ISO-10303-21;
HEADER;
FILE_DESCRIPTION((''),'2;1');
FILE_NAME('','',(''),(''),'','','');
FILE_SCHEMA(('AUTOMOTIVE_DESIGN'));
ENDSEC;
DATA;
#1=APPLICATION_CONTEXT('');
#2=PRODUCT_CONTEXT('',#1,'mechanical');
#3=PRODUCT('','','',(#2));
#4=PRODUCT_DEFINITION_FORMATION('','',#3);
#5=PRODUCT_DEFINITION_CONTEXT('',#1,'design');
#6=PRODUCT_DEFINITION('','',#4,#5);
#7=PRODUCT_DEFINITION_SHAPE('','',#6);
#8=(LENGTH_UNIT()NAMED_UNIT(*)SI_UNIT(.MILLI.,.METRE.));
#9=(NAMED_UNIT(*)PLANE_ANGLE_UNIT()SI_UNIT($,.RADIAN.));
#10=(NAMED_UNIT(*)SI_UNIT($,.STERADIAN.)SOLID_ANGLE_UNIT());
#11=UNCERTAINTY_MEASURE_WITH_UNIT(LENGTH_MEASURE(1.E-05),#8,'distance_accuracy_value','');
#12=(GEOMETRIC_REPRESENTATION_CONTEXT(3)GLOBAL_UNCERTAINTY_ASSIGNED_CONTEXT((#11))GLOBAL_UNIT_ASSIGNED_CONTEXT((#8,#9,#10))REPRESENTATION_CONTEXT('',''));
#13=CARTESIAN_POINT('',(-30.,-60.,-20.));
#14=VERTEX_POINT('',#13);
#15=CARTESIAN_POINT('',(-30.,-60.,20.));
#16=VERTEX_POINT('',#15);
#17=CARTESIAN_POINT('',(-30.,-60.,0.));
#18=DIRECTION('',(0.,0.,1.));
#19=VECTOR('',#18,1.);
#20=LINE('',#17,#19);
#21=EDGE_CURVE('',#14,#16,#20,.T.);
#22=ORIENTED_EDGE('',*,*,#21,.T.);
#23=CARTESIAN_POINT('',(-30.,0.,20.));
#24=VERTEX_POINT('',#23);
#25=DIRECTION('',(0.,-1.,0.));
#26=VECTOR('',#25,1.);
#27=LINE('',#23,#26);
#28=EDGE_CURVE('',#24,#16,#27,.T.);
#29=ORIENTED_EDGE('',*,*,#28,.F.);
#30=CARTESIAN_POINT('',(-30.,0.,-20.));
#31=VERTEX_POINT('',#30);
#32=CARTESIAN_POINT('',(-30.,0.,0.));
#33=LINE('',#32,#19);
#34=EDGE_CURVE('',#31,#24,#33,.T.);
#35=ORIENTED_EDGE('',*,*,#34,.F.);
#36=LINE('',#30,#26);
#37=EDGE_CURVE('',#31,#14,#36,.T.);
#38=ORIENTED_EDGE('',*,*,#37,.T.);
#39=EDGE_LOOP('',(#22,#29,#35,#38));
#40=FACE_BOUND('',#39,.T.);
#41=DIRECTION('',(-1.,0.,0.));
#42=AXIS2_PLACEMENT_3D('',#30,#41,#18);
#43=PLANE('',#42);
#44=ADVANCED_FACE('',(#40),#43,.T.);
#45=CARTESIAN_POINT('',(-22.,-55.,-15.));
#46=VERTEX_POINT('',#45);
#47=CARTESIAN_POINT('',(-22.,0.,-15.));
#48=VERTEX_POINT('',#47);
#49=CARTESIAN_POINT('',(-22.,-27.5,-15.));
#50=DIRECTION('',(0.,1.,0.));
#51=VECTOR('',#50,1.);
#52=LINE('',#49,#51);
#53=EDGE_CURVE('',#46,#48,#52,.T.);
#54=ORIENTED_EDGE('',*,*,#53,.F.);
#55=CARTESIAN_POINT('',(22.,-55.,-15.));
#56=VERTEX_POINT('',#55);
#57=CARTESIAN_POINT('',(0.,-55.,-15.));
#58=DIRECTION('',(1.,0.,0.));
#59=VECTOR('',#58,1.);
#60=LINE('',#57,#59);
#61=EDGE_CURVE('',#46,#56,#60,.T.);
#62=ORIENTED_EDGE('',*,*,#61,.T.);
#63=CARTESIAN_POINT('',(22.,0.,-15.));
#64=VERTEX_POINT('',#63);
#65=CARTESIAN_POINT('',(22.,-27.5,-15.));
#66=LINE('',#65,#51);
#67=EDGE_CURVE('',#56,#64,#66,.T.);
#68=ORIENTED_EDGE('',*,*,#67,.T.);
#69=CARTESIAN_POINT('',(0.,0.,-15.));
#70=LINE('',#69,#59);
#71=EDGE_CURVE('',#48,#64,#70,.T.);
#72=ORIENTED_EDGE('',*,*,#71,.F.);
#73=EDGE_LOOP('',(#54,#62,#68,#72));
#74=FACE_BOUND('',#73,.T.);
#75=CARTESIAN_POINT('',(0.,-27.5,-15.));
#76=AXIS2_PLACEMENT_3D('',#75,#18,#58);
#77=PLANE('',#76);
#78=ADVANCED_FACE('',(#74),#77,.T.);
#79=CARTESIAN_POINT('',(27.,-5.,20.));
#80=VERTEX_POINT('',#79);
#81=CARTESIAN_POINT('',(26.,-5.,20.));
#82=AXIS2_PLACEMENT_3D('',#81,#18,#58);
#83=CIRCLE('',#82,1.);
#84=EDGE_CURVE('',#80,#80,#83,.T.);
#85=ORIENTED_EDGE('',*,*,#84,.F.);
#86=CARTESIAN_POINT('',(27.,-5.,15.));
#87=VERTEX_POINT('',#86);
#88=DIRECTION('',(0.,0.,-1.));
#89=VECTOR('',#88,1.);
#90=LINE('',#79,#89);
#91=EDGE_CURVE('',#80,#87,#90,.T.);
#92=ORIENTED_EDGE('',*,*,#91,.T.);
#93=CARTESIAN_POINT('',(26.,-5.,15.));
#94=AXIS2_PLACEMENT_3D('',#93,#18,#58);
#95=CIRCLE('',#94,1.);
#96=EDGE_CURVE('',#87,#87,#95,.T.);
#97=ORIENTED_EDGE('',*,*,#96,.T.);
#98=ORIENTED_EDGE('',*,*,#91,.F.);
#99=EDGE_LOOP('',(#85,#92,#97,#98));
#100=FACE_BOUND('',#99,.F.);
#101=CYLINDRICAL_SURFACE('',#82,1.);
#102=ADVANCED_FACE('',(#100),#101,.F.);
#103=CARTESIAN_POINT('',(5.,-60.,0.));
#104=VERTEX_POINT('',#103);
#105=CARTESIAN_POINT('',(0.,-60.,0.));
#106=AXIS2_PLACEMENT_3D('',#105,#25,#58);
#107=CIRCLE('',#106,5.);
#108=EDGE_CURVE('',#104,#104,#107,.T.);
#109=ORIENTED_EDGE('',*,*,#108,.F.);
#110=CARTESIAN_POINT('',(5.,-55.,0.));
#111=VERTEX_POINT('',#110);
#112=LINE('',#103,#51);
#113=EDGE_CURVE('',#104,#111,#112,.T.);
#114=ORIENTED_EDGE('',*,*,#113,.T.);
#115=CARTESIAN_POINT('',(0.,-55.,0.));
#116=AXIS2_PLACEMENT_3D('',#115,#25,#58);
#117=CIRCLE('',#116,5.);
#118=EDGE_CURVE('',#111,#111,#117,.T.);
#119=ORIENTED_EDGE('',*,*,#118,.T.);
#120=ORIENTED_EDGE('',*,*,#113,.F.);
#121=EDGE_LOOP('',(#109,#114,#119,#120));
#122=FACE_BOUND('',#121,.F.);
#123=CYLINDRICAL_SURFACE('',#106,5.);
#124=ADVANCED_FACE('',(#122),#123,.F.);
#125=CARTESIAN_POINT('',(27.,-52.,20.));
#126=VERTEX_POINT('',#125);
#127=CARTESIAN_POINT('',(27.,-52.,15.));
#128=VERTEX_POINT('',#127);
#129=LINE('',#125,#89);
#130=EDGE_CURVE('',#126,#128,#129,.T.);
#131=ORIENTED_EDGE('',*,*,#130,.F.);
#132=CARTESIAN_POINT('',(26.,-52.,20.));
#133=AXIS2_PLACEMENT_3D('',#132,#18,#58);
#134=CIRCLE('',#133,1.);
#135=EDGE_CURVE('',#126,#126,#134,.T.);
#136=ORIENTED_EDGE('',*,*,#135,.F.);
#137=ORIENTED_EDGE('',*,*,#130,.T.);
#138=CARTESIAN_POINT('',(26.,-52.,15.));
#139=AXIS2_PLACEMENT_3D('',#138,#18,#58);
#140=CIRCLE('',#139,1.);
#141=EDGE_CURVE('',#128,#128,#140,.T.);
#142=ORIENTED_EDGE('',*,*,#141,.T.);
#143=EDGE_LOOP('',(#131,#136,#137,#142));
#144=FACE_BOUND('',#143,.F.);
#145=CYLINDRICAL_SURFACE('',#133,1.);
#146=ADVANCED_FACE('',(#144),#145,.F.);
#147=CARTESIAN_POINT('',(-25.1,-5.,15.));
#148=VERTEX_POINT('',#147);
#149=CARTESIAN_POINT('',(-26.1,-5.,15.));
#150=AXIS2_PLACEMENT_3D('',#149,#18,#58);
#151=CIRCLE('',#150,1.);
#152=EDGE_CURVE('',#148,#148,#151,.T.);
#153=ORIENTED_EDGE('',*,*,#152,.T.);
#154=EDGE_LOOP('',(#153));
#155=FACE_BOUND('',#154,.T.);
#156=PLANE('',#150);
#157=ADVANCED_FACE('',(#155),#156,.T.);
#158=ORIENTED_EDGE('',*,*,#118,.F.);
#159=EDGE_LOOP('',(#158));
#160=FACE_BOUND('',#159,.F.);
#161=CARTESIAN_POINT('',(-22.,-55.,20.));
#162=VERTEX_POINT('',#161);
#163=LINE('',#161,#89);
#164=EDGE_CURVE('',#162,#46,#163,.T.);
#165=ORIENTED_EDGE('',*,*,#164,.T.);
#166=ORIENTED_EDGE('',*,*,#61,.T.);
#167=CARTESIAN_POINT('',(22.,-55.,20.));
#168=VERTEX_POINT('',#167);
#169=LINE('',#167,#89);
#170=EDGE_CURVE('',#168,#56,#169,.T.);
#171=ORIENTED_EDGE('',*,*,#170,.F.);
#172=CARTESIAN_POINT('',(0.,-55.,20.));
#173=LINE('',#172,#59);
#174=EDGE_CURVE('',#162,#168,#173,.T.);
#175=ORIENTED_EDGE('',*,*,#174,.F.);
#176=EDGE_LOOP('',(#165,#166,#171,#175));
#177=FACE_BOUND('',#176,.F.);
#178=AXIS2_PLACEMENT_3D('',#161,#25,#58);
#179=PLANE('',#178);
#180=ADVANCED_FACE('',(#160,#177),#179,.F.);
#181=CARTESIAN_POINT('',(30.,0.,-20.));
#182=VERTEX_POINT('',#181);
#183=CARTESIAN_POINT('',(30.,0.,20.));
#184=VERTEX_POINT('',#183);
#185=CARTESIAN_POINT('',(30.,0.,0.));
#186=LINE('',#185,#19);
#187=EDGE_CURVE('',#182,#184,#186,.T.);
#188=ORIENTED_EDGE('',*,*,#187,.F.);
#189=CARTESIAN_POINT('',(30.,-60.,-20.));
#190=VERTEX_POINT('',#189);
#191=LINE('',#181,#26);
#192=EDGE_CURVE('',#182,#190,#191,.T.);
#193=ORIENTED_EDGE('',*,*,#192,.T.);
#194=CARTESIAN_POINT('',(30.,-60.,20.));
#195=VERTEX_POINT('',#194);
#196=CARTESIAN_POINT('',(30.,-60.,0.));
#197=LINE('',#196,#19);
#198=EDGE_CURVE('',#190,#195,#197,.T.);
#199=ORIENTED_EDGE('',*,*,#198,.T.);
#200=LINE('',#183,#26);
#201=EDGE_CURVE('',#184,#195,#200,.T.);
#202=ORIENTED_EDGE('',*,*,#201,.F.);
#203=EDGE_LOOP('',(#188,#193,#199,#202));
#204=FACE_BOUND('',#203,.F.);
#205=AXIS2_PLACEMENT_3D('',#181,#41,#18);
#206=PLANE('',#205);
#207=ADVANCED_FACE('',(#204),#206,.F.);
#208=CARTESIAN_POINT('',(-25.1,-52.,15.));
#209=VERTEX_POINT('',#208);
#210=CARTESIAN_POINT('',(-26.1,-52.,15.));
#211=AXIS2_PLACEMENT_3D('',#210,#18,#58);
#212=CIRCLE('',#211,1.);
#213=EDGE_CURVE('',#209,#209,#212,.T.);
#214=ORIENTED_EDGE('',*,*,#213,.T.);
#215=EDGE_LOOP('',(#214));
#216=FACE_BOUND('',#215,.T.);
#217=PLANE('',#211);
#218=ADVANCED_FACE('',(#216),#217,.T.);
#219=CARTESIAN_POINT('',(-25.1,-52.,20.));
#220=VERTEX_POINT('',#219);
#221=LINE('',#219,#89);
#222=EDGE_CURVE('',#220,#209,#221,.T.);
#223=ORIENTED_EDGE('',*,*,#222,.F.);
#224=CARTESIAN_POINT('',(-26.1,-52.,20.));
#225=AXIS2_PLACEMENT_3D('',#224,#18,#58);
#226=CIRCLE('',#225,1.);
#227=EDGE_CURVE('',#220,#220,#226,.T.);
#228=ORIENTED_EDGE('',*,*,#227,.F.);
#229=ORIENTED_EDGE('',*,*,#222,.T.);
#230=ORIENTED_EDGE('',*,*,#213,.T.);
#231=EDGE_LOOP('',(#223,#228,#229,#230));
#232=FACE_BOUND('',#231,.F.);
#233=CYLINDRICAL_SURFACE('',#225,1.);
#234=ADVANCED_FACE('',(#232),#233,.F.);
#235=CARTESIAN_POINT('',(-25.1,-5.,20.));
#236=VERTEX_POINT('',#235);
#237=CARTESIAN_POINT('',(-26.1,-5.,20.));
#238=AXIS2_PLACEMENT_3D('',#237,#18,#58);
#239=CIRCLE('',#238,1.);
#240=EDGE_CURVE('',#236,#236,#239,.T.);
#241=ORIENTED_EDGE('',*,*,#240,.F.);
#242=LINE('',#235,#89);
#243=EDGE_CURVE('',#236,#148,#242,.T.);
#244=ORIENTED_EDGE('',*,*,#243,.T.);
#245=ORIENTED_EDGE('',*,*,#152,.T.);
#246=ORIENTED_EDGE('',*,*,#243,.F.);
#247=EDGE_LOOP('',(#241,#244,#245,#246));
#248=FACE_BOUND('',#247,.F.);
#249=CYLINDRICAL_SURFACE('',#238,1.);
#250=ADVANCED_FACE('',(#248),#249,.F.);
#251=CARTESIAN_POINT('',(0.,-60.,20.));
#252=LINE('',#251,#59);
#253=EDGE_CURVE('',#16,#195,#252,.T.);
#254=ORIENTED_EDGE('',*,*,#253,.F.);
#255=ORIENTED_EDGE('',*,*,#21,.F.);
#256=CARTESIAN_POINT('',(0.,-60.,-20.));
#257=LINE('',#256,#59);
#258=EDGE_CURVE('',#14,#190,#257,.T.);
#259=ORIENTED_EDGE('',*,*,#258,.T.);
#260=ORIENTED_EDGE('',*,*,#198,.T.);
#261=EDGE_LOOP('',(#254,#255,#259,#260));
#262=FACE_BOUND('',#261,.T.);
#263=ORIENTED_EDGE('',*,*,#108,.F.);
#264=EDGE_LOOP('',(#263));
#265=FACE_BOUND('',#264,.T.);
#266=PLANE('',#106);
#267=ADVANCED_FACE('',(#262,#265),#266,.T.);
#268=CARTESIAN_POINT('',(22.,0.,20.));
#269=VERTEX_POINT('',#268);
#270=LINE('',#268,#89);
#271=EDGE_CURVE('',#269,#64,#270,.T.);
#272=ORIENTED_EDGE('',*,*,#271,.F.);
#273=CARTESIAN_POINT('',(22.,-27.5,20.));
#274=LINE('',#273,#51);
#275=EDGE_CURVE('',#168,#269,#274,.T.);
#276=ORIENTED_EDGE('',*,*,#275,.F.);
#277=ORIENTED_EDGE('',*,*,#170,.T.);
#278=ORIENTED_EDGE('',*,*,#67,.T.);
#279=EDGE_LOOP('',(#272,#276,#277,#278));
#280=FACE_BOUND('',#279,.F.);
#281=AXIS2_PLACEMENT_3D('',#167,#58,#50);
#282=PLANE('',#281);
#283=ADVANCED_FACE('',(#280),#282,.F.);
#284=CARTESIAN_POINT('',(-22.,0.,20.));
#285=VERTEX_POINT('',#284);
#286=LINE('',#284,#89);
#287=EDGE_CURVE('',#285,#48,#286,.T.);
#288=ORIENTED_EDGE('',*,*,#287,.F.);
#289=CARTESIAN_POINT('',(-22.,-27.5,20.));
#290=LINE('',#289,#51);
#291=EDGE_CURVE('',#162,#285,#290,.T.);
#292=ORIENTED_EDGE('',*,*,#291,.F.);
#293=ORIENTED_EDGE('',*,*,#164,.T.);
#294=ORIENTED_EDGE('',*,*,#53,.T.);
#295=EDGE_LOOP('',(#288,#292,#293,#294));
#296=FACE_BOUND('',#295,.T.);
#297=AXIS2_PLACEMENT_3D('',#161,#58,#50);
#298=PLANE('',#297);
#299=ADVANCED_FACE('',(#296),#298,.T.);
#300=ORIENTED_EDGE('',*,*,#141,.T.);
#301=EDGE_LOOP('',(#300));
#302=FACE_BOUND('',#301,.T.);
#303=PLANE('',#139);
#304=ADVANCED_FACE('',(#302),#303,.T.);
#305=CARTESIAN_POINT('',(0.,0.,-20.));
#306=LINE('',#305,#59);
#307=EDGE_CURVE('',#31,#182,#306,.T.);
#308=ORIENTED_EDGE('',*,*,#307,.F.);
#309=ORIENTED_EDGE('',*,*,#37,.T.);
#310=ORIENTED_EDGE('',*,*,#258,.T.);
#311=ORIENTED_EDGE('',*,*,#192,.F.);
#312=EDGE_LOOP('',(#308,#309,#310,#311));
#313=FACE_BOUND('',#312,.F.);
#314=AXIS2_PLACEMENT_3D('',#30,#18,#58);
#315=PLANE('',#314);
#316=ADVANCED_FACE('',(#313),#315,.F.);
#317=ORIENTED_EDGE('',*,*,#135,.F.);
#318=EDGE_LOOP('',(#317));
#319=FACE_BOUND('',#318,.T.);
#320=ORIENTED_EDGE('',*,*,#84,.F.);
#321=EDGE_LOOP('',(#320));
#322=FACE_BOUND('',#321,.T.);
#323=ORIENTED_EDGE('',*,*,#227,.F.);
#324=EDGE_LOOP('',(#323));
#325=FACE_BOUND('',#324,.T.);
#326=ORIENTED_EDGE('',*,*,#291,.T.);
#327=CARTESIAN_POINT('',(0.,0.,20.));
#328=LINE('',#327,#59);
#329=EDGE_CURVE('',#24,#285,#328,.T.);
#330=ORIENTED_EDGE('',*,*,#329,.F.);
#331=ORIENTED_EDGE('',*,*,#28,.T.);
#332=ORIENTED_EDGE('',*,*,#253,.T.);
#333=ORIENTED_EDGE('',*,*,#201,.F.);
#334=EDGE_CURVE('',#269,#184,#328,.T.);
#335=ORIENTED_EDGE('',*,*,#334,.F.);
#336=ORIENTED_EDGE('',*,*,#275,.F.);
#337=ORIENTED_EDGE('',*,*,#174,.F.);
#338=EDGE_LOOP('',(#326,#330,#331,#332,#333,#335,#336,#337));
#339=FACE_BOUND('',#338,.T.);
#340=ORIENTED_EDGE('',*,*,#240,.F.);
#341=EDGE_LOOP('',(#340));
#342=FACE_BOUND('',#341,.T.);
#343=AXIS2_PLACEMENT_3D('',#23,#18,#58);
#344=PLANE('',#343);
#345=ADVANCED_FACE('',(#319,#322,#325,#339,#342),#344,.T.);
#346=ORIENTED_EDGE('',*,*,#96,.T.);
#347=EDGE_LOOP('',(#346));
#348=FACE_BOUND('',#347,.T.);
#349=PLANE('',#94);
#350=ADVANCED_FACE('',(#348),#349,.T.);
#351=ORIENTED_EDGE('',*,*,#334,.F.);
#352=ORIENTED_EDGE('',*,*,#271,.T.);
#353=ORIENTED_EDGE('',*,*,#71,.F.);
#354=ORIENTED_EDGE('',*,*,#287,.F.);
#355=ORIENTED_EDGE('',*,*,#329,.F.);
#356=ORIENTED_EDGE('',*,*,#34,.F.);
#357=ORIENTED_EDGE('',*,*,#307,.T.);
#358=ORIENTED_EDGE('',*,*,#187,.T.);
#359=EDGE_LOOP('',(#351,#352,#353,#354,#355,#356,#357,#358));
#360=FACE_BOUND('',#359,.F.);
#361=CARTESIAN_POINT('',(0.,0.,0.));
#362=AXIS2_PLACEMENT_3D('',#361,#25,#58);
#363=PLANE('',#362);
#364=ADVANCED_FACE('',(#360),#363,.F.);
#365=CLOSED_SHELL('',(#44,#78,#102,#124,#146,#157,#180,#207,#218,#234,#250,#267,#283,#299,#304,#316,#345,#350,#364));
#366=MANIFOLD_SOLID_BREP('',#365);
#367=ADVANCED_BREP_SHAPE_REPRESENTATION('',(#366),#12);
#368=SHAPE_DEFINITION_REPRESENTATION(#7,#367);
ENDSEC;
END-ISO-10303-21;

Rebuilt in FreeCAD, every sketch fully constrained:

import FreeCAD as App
import Part
import Sketcher
Q = App.Units.Quantity

doc = App.newDocument("Part")
body = doc.addObject("PartDesign::Body", "Body")

# Sketch on XZ plane
sketch1 = body.newObject("Sketcher::SketchObject", "Sketch")
sketch1.AttachmentSupport = (doc.getObject("XZ_Plane"), [""])
sketch1.MapMode = "FlatFace"
sketch1.addGeometry(Part.LineSegment(App.Vector(-30, 20, 0), App.Vector(-30, -20, 0)), False)
sketch1.addGeometry(Part.LineSegment(App.Vector(-30, -20, 0), App.Vector(30, -20, 0)), False)
sketch1.addGeometry(Part.LineSegment(App.Vector(30, -20, 0), App.Vector(30, 20, 0)), False)
sketch1.addGeometry(Part.LineSegment(App.Vector(30, 20, 0), App.Vector(-30, 20, 0)), False)
sketch1.addConstraint(Sketcher.Constraint("Coincident", 0, 2, 1, 1))
sketch1.addConstraint(Sketcher.Constraint("Coincident", 1, 2, 2, 1))
sketch1.addConstraint(Sketcher.Constraint("Coincident", 2, 2, 3, 1))
sketch1.addConstraint(Sketcher.Constraint("Coincident", 3, 2, 0, 1))
sketch1.addConstraint(Sketcher.Constraint("Vertical", 0))
sketch1.addConstraint(Sketcher.Constraint("Horizontal", 1))
sketch1.addConstraint(Sketcher.Constraint("Vertical", 2))
sketch1.addConstraint(Sketcher.Constraint("Horizontal", 3))
sketch1.addConstraint(Sketcher.Constraint("Symmetric", 0, 2, 2, 2, -1, 1))
sketch1.addConstraint(Sketcher.Constraint("DistanceX", 1, 1, 1, 2, Q("60 mm")))
sketch1.addConstraint(Sketcher.Constraint("DistanceY", 0, 2, 0, 1, Q("40 mm")))
pad1 = body.newObject("PartDesign::Pad", "Pad")
pad1.Profile = sketch1
pad1.Length = 60

# Sketch on XY plane
sketch2 = body.newObject("Sketcher::SketchObject", "Sketch001")
sketch2.AttachmentSupport = (doc.getObject("XY_Plane"), [""])
sketch2.MapMode = "FlatFace"
sketch2.AttachmentOffset = App.Placement(App.Vector(0, 0, 20), App.Rotation())
sketch2.addGeometry(Part.LineSegment(App.Vector(-22, 0, 0), App.Vector(-22, -55, 0)), False)
sketch2.addGeometry(Part.LineSegment(App.Vector(-22, -55, 0), App.Vector(22, -55, 0)), False)
sketch2.addGeometry(Part.LineSegment(App.Vector(22, -55, 0), App.Vector(22, 0, 0)), False)
sketch2.addGeometry(Part.LineSegment(App.Vector(22, 0, 0), App.Vector(-22, 0, 0)), False)
sketch2.addConstraint(Sketcher.Constraint("Coincident", 0, 2, 1, 1))
sketch2.addConstraint(Sketcher.Constraint("Coincident", 1, 2, 2, 1))
sketch2.addConstraint(Sketcher.Constraint("Coincident", 2, 2, 3, 1))
sketch2.addConstraint(Sketcher.Constraint("Coincident", 3, 2, 0, 1))
sketch2.addConstraint(Sketcher.Constraint("Vertical", 0))
sketch2.addConstraint(Sketcher.Constraint("Horizontal", 1))
sketch2.addConstraint(Sketcher.Constraint("Vertical", 2))
sketch2.addConstraint(Sketcher.Constraint("Horizontal", 3))
sketch2.addConstraint(Sketcher.Constraint("Symmetric", 2, 2, 3, 2, -1, 1))
sketch2.addConstraint(Sketcher.Constraint("DistanceX", 1, 1, 1, 2, Q("44 mm")))
sketch2.addConstraint(Sketcher.Constraint("DistanceY", 0, 2, 0, 1, Q("55 mm")))
pocket1 = body.newObject("PartDesign::Pocket", "Pocket")
pocket1.Profile = sketch2
pocket1.Length = 35

# Sketch on XZ plane
sketch3 = body.newObject("Sketcher::SketchObject", "Sketch002")
sketch3.AttachmentSupport = (doc.getObject("XZ_Plane"), [""])
sketch3.MapMode = "FlatFace"
sketch3.AttachmentOffset = App.Placement(App.Vector(0, 0, 60), App.Rotation())
sketch3.addGeometry(Part.Circle(App.Vector(0, 0, 0), App.Vector(0, 0, 1), 5), False)
sketch3.addConstraint(Sketcher.Constraint("Coincident", 0, 3, -1, 1))
sketch3.addConstraint(Sketcher.Constraint("Diameter", 0, Q("10 mm")))
pocket2 = body.newObject("PartDesign::Pocket", "Pocket001")
pocket2.Profile = sketch3
pocket2.Length = 25

# Sketch on XY plane
sketch4 = body.newObject("Sketcher::SketchObject", "Sketch003")
sketch4.AttachmentSupport = (doc.getObject("XY_Plane"), [""])
sketch4.MapMode = "FlatFace"
sketch4.AttachmentOffset = App.Placement(App.Vector(0, 0, 20), App.Rotation())
sketch4.addGeometry(Part.Circle(App.Vector(-26.1, -5, 0), App.Vector(0, 0, 1), 1), False)
sketch4.addGeometry(Part.Circle(App.Vector(26, -5, 0), App.Vector(0, 0, 1), 1), False)
sketch4.addGeometry(Part.Circle(App.Vector(26, -52, 0), App.Vector(0, 0, 1), 1), False)
sketch4.addGeometry(Part.Circle(App.Vector(-26.1, -52, 0), App.Vector(0, 0, 1), 1), False)
sketch4.addConstraint(Sketcher.Constraint("Equal", 0, 1))
sketch4.addConstraint(Sketcher.Constraint("Equal", 1, 2))
sketch4.addConstraint(Sketcher.Constraint("Equal", 2, 3))
sketch4.addConstraint(Sketcher.Constraint("Horizontal", 0, 3, 1, 3))
sketch4.addConstraint(Sketcher.Constraint("Horizontal", 2, 3, 3, 3))
sketch4.addConstraint(Sketcher.Constraint("Vertical", 1, 3, 2, 3))
sketch4.addConstraint(Sketcher.Constraint("Vertical", 0, 3, 3, 3))
sketch4.addConstraint(Sketcher.Constraint("Diameter", 0, Q("2 mm")))
sketch4.addConstraint(Sketcher.Constraint("DistanceY", 0, 3, -1, 1, Q("5 mm")))
sketch4.addConstraint(Sketcher.Constraint("DistanceX", -1, 1, 1, 3, Q("26 mm")))
sketch4.addConstraint(Sketcher.Constraint("DistanceY", 2, 3, -1, 1, Q("52 mm")))
sketch4.addConstraint(Sketcher.Constraint("DistanceX", 0, 3, -1, 1, Q("26.1 mm")))
pocket3 = body.newObject("PartDesign::Pocket", "Pocket002")
pocket3.Profile = sketch4
pocket3.Length = 5

doc.recompute()
